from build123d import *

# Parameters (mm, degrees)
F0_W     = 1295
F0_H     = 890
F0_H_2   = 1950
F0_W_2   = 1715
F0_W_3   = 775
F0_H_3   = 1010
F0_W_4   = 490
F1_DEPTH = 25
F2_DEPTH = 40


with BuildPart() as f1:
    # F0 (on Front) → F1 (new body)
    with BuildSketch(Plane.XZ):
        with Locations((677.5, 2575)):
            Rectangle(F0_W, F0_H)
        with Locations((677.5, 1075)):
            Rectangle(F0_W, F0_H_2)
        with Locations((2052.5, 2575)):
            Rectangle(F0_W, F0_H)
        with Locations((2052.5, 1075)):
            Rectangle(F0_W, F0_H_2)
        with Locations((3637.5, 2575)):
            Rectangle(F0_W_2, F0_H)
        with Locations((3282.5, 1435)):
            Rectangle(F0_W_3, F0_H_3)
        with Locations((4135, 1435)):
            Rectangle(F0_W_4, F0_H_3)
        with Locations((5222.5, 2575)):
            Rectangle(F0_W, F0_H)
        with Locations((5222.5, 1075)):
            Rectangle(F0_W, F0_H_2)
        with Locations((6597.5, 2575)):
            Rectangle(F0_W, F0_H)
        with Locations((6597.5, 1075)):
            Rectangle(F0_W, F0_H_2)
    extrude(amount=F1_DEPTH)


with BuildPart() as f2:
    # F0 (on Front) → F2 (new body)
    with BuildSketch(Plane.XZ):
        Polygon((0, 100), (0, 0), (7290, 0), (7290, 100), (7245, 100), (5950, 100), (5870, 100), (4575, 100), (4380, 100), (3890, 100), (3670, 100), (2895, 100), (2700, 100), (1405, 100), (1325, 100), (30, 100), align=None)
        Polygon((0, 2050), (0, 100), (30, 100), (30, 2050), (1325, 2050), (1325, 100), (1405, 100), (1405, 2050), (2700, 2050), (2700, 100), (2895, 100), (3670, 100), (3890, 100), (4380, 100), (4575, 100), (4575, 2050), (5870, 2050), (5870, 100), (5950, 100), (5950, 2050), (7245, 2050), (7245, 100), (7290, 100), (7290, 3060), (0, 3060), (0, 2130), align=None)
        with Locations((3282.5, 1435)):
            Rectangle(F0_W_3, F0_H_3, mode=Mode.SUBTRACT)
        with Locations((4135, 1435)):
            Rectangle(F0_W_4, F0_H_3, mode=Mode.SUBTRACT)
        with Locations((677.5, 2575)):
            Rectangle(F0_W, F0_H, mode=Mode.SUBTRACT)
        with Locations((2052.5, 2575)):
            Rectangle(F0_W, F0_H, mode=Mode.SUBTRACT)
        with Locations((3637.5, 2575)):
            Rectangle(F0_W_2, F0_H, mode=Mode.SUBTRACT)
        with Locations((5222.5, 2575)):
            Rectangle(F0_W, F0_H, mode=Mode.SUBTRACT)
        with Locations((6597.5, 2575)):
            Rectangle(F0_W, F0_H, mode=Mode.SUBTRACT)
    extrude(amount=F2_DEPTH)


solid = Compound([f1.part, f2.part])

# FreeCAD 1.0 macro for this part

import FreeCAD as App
import Part
import Sketcher
from FreeCAD import Vector

doc = App.newDocument("Part")
body = doc.addObject("PartDesign::Body", "Body")
body.AllowCompound = True

sketch1 = doc.addObject("Sketcher::SketchObject", "Sketch")
body.addObject(sketch1)
sketch1.AttachmentSupport = (doc.XZ_Plane, [""])
sketch1.MapMode = "FlatFace"
sketch1.addGeometry([
    Part.LineSegment(Vector(30, 3020, 0), Vector(30, 2130, 0)),
    Part.LineSegment(Vector(30, 2130, 0), Vector(1325, 2130, 0)),
    Part.LineSegment(Vector(1325, 2130, 0), Vector(1325, 3020, 0)),
    Part.LineSegment(Vector(1325, 3020, 0), Vector(30, 3020, 0)),
    Part.LineSegment(Vector(30, 2050, 0), Vector(30, 100, 0)),
    Part.LineSegment(Vector(30, 100, 0), Vector(1325, 100, 0)),
    Part.LineSegment(Vector(1325, 100, 0), Vector(1325, 2050, 0)),
    Part.LineSegment(Vector(1325, 2050, 0), Vector(30, 2050, 0)),
    Part.LineSegment(Vector(1405, 3020, 0), Vector(1405, 2130, 0)),
    Part.LineSegment(Vector(1405, 2130, 0), Vector(2700, 2130, 0)),
    Part.LineSegment(Vector(2700, 2130, 0), Vector(2700, 3020, 0)),
    Part.LineSegment(Vector(2700, 3020, 0), Vector(1405, 3020, 0)),
    Part.LineSegment(Vector(1405, 2050, 0), Vector(1405, 100, 0)),
    Part.LineSegment(Vector(1405, 100, 0), Vector(2700, 100, 0)),
    Part.LineSegment(Vector(2700, 100, 0), Vector(2700, 2050, 0)),
    Part.LineSegment(Vector(2700, 2050, 0), Vector(1405, 2050, 0)),
    Part.LineSegment(Vector(2780, 3020, 0), Vector(2780, 2130, 0)),
    Part.LineSegment(Vector(2780, 2130, 0), Vector(4495, 2130, 0)),
    Part.LineSegment(Vector(4495, 2130, 0), Vector(4495, 3020, 0)),
    Part.LineSegment(Vector(4495, 3020, 0), Vector(2780, 3020, 0)),
    Part.LineSegment(Vector(2895, 1940, 0), Vector(2895, 930, 0)),
    Part.LineSegment(Vector(2895, 930, 0), Vector(3670, 930, 0)),
    Part.LineSegment(Vector(3670, 930, 0), Vector(3670, 1940, 0)),
    Part.LineSegment(Vector(3670, 1940, 0), Vector(2895, 1940, 0)),
    Part.LineSegment(Vector(3890, 1940, 0), Vector(3890, 930, 0)),
    Part.LineSegment(Vector(3890, 930, 0), Vector(4380, 930, 0)),
    Part.LineSegment(Vector(4380, 930, 0), Vector(4380, 1940, 0)),
    Part.LineSegment(Vector(4380, 1940, 0), Vector(3890, 1940, 0)),
    Part.LineSegment(Vector(4575, 3020, 0), Vector(4575, 2130, 0)),
    Part.LineSegment(Vector(4575, 2130, 0), Vector(5870, 2130, 0)),
    Part.LineSegment(Vector(5870, 2130, 0), Vector(5870, 3020, 0)),
    Part.LineSegment(Vector(5870, 3020, 0), Vector(4575, 3020, 0)),
    Part.LineSegment(Vector(4575, 2050, 0), Vector(4575, 100, 0)),
    Part.LineSegment(Vector(4575, 100, 0), Vector(5870, 100, 0)),
    Part.LineSegment(Vector(5870, 100, 0), Vector(5870, 2050, 0)),
    Part.LineSegment(Vector(5870, 2050, 0), Vector(4575, 2050, 0)),
    Part.LineSegment(Vector(5950, 3020, 0), Vector(5950, 2130, 0)),
    Part.LineSegment(Vector(5950, 2130, 0), Vector(7245, 2130, 0)),
    Part.LineSegment(Vector(7245, 2130, 0), Vector(7245, 3020, 0)),
    Part.LineSegment(Vector(7245, 3020, 0), Vector(5950, 3020, 0)),
    Part.LineSegment(Vector(5950, 2050, 0), Vector(5950, 100, 0)),
    Part.LineSegment(Vector(5950, 100, 0), Vector(7245, 100, 0)),
    Part.LineSegment(Vector(7245, 100, 0), Vector(7245, 2050, 0)),
    Part.LineSegment(Vector(7245, 2050, 0), Vector(5950, 2050, 0)),
], False)
sketch1.addConstraint([
    Sketcher.Constraint("Coincident", 0, 2, 1, 1),
    Sketcher.Constraint("Coincident", 1, 2, 2, 1),
    Sketcher.Constraint("Coincident", 2, 2, 3, 1),
    Sketcher.Constraint("Coincident", 3, 2, 0, 1),
    Sketcher.Constraint("Coincident", 4, 2, 5, 1),
    Sketcher.Constraint("Coincident", 5, 2, 6, 1),
    Sketcher.Constraint("Coincident", 6, 2, 7, 1),
    Sketcher.Constraint("Coincident", 7, 2, 4, 1),
    Sketcher.Constraint("Coincident", 8, 2, 9, 1),
    Sketcher.Constraint("Coincident", 9, 2, 10, 1),
    Sketcher.Constraint("Coincident", 10, 2, 11, 1),
    Sketcher.Constraint("Coincident", 11, 2, 8, 1),
    Sketcher.Constraint("Coincident", 12, 2, 13, 1),
    Sketcher.Constraint("Coincident", 13, 2, 14, 1),
    Sketcher.Constraint("Coincident", 14, 2, 15, 1),
    Sketcher.Constraint("Coincident", 15, 2, 12, 1),
    Sketcher.Constraint("Coincident", 16, 2, 17, 1),
    Sketcher.Constraint("Coincident", 17, 2, 18, 1),
    Sketcher.Constraint("Coincident", 18, 2, 19, 1),
    Sketcher.Constraint("Coincident", 19, 2, 16, 1),
    Sketcher.Constraint("Coincident", 20, 2, 21, 1),
    Sketcher.Constraint("Coincident", 21, 2, 22, 1),
    Sketcher.Constraint("Coincident", 22, 2, 23, 1),
    Sketcher.Constraint("Coincident", 23, 2, 20, 1),
    Sketcher.Constraint("Coincident", 24, 2, 25, 1),
    Sketcher.Constraint("Coincident", 25, 2, 26, 1),
    Sketcher.Constraint("Coincident", 26, 2, 27, 1),
    Sketcher.Constraint("Coincident", 27, 2, 24, 1),
    Sketcher.Constraint("Coincident", 28, 2, 29, 1),
    Sketcher.Constraint("Coincident", 29, 2, 30, 1),
    Sketcher.Constraint("Coincident", 30, 2, 31, 1),
    Sketcher.Constraint("Coincident", 31, 2, 28, 1),
    Sketcher.Constraint("Coincident", 32, 2, 33, 1),
    Sketcher.Constraint("Coincident", 33, 2, 34, 1),
    Sketcher.Constraint("Coincident", 34, 2, 35, 1),
    Sketcher.Constraint("Coincident", 35, 2, 32, 1),
    Sketcher.Constraint("Coincident", 36, 2, 37, 1),
    Sketcher.Constraint("Coincident", 37, 2, 38, 1),
    Sketcher.Constraint("Coincident", 38, 2, 39, 1),
    Sketcher.Constraint("Coincident", 39, 2, 36, 1),
    Sketcher.Constraint("Coincident", 40, 2, 41, 1),
    Sketcher.Constraint("Coincident", 41, 2, 42, 1),
    Sketcher.Constraint("Coincident", 42, 2, 43, 1),
    Sketcher.Constraint("Coincident", 43, 2, 40, 1),
    Sketcher.Constraint("Vertical", 0),
    Sketcher.Constraint("Horizontal", 1),
    Sketcher.Constraint("Vertical", 2),
    Sketcher.Constraint("Horizontal", 3),
    Sketcher.Constraint("Vertical", 4),
    Sketcher.Constraint("Horizontal", 5),
    Sketcher.Constraint("Vertical", 6),
    Sketcher.Constraint("Horizontal", 7),
    Sketcher.Constraint("Vertical", 8),
    Sketcher.Constraint("Horizontal", 9),
    Sketcher.Constraint("Vertical", 10),
    Sketcher.Constraint("Horizontal", 11),
    Sketcher.Constraint("Vertical", 12),
    Sketcher.Constraint("Horizontal", 13),
    Sketcher.Constraint("Vertical", 14),
    Sketcher.Constraint("Horizontal", 15),
    Sketcher.Constraint("Vertical", 16),
    Sketcher.Constraint("Horizontal", 17),
    Sketcher.Constraint("Vertical", 18),
    Sketcher.Constraint("Horizontal", 19),
    Sketcher.Constraint("Vertical", 20),
    Sketcher.Constraint("Horizontal", 21),
    Sketcher.Constraint("Vertical", 22),
    Sketcher.Constraint("Horizontal", 23),
    Sketcher.Constraint("Vertical", 24),
    Sketcher.Constraint("Horizontal", 25),
    Sketcher.Constraint("Vertical", 26),
    Sketcher.Constraint("Horizontal", 27),
    Sketcher.Constraint("Vertical", 28),
    Sketcher.Constraint("Horizontal", 29),
    Sketcher.Constraint("Vertical", 30),
    Sketcher.Constraint("Horizontal", 31),
    Sketcher.Constraint("Vertical", 32),
    Sketcher.Constraint("Horizontal", 33),
    Sketcher.Constraint("Vertical", 34),
    Sketcher.Constraint("Horizontal", 35),
    Sketcher.Constraint("Vertical", 36),
    Sketcher.Constraint("Horizontal", 37),
    Sketcher.Constraint("Vertical", 38),
    Sketcher.Constraint("Horizontal", 39),
    Sketcher.Constraint("Vertical", 40),
    Sketcher.Constraint("Horizontal", 41),
    Sketcher.Constraint("Vertical", 42),
    Sketcher.Constraint("Horizontal", 43),
    Sketcher.Constraint("Horizontal", 1, 2, 8, 2),
    Sketcher.Constraint("Horizontal", 3, 2, 10, 2),
    Sketcher.Constraint("Horizontal", 5, 2, 12, 2),
    Sketcher.Constraint("Horizontal", 7, 2, 14, 2),
    Sketcher.Constraint("Horizontal", 9, 2, 16, 2),
    Sketcher.Constraint("Horizontal", 11, 2, 18, 2),
    Sketcher.Constraint("Horizontal", 21, 2, 24, 2),
    Sketcher.Constraint("Horizontal", 23, 2, 26, 2),
    Sketcher.Constraint("Horizontal", 17, 2, 28, 2),
    Sketcher.Constraint("Horizontal", 19, 2, 30, 2),
    Sketcher.Constraint("Horizontal", 13, 2, 32, 2),
    Sketcher.Constraint("Horizontal", 15, 2, 34, 2),
    Sketcher.Constraint("Horizontal", 29, 2, 36, 2),
    Sketcher.Constraint("Horizontal", 31, 2, 38, 2),
    Sketcher.Constraint("Horizontal", 33, 2, 40, 2),
    Sketcher.Constraint("Horizontal", 35, 2, 42, 2),
    Sketcher.Constraint("Vertical", 3, 2, 4, 2),
    Sketcher.Constraint("Vertical", 2, 2, 5, 2),
    Sketcher.Constraint("Vertical", 11, 2, 12, 2),
    Sketcher.Constraint("Vertical", 10, 2, 13, 2),
    Sketcher.Constraint("Vertical", 31, 2, 32, 2),
    Sketcher.Constraint("Vertical", 30, 2, 33, 2),
    Sketcher.Constraint("Vertical", 39, 2, 40, 2),
    Sketcher.Constraint("Vertical", 38, 2, 41, 2),
    Sketcher.Constraint("Equal", 7, 9),
    Sketcher.Constraint("Equal", 15, 29),
    Sketcher.Constraint("Equal", 35, 37),
    Sketcher.Constraint("DistanceX", 1, 1, 1, 2, 1295.0),
    Sketcher.Constraint("DistanceX", 17, 1, 17, 2, 1715.0),
    Sketcher.Constraint("DistanceX", 21, 1, 21, 2, 775.0),
    Sketcher.Constraint("DistanceX", 25, 1, 25, 2, 490.0),
    Sketcher.Constraint("DistanceY", 0, 2, 0, 1, 890.0),
    Sketcher.Constraint("DistanceY", 4, 2, 4, 1, 1950.0),
    Sketcher.Constraint("DistanceY", 20, 2, 20, 1, 1010.0),
    Sketcher.Constraint("DistanceX", -1, 1, 0, 2, 30.0),
    Sketcher.Constraint("DistanceY", -1, 1, 0, 2, 2130.0),
    Sketcher.Constraint("DistanceY", -1, 1, 4, 2, 100.0),
    Sketcher.Constraint("DistanceX", -1, 1, 8, 2, 1405.0),
    Sketcher.Constraint("DistanceX", -1, 1, 16, 2, 2780.0),
    Sketcher.Constraint("DistanceX", -1, 1, 20, 2, 2895.0),
    Sketcher.Constraint("DistanceY", -1, 1, 20, 2, 930.0),
    Sketcher.Constraint("DistanceX", -1, 1, 24, 2, 3890.0),
    Sketcher.Constraint("DistanceX", -1, 1, 28, 2, 4575.0),
    Sketcher.Constraint("DistanceX", -1, 1, 36, 2, 5950.0),
])
pad1 = doc.addObject("PartDesign::Pad", "Pad")
body.addObject(pad1)
pad1.Profile = sketch1
pad1.Length = 25
body2 = doc.addObject("PartDesign::Body", "Body001")

sketch2 = doc.addObject("Sketcher::SketchObject", "Sketch001")
body2.addObject(sketch2)
sketch2.AttachmentSupport = (doc.getObject("XZ_Plane001"), [""])
sketch2.MapMode = "FlatFace"
sketch2.addGeometry([
    Part.LineSegment(Vector(0, 0, 0), Vector(7290, 0, 0)),
    Part.LineSegment(Vector(7290, 0, 0), Vector(7290, 3060, 0)),
    Part.LineSegment(Vector(7290, 3060, 0), Vector(0, 3060, 0)),
    Part.LineSegment(Vector(0, 3060, 0), Vector(0, 0, 0)),
    Part.LineSegment(Vector(1325, 100, 0), Vector(30, 100, 0)),
    Part.LineSegment(Vector(30, 100, 0), Vector(30, 2050, 0)),
    Part.LineSegment(Vector(30, 2050, 0), Vector(1325, 2050, 0)),
    Part.LineSegment(Vector(1325, 2050, 0), Vector(1325, 100, 0)),
    Part.LineSegment(Vector(2700, 100, 0), Vector(1405, 100, 0)),
    Part.LineSegment(Vector(1405, 100, 0), Vector(1405, 2050, 0)),
    Part.LineSegment(Vector(1405, 2050, 0), Vector(2700, 2050, 0)),
    Part.LineSegment(Vector(2700, 2050, 0), Vector(2700, 100, 0)),
    Part.LineSegment(Vector(3670, 930, 0), Vector(2895, 930, 0)),
    Part.LineSegment(Vector(2895, 930, 0), Vector(2895, 1940, 0)),
    Part.LineSegment(Vector(2895, 1940, 0), Vector(3670, 1940, 0)),
    Part.LineSegment(Vector(3670, 1940, 0), Vector(3670, 930, 0)),
    Part.LineSegment(Vector(5870, 100, 0), Vector(4575, 100, 0)),
    Part.LineSegment(Vector(4575, 100, 0), Vector(4575, 2050, 0)),
    Part.LineSegment(Vector(4575, 2050, 0), Vector(5870, 2050, 0)),
    Part.LineSegment(Vector(5870, 2050, 0), Vector(5870, 100, 0)),
    Part.LineSegment(Vector(4380, 930, 0), Vector(3890, 930, 0)),
    Part.LineSegment(Vector(3890, 930, 0), Vector(3890, 1940, 0)),
    Part.LineSegment(Vector(3890, 1940, 0), Vector(4380, 1940, 0)),
    Part.LineSegment(Vector(4380, 1940, 0), Vector(4380, 930, 0)),
    Part.LineSegment(Vector(7245, 100, 0), Vector(5950, 100, 0)),
    Part.LineSegment(Vector(5950, 100, 0), Vector(5950, 2050, 0)),
    Part.LineSegment(Vector(5950, 2050, 0), Vector(7245, 2050, 0)),
    Part.LineSegment(Vector(7245, 2050, 0), Vector(7245, 100, 0)),
    Part.LineSegment(Vector(1325, 2130, 0), Vector(30, 2130, 0)),
    Part.LineSegment(Vector(30, 2130, 0), Vector(30, 3020, 0)),
    Part.LineSegment(Vector(30, 3020, 0), Vector(1325, 3020, 0)),
    Part.LineSegment(Vector(1325, 3020, 0), Vector(1325, 2130, 0)),
    Part.LineSegment(Vector(2700, 2130, 0), Vector(1405, 2130, 0)),
    Part.LineSegment(Vector(1405, 2130, 0), Vector(1405, 3020, 0)),
    Part.LineSegment(Vector(1405, 3020, 0), Vector(2700, 3020, 0)),
    Part.LineSegment(Vector(2700, 3020, 0), Vector(2700, 2130, 0)),
    Part.LineSegment(Vector(4495, 2130, 0), Vector(2780, 2130, 0)),
    Part.LineSegment(Vector(2780, 2130, 0), Vector(2780, 3020, 0)),
    Part.LineSegment(Vector(2780, 3020, 0), Vector(4495, 3020, 0)),
    Part.LineSegment(Vector(4495, 3020, 0), Vector(4495, 2130, 0)),
    Part.LineSegment(Vector(5870, 2130, 0), Vector(4575, 2130, 0)),
    Part.LineSegment(Vector(4575, 2130, 0), Vector(4575, 3020, 0)),
    Part.LineSegment(Vector(4575, 3020, 0), Vector(5870, 3020, 0)),
    Part.LineSegment(Vector(5870, 3020, 0), Vector(5870, 2130, 0)),
    Part.LineSegment(Vector(7245, 2130, 0), Vector(5950, 2130, 0)),
    Part.LineSegment(Vector(5950, 2130, 0), Vector(5950, 3020, 0)),
    Part.LineSegment(Vector(5950, 3020, 0), Vector(7245, 3020, 0)),
    Part.LineSegment(Vector(7245, 3020, 0), Vector(7245, 2130, 0)),
], False)
sketch2.addConstraint([
    Sketcher.Constraint("Coincident", 0, 2, 1, 1),
    Sketcher.Constraint("Coincident", 1, 2, 2, 1),
    Sketcher.Constraint("Coincident", 2, 2, 3, 1),
    Sketcher.Constraint("Coincident", 3, 2, 0, 1),
    Sketcher.Constraint("Coincident", 4, 2, 5, 1),
    Sketcher.Constraint("Coincident", 5, 2, 6, 1),
    Sketcher.Constraint("Coincident", 6, 2, 7, 1),
    Sketcher.Constraint("Coincident", 7, 2, 4, 1),
    Sketcher.Constraint("Coincident", 8, 2, 9, 1),
    Sketcher.Constraint("Coincident", 9, 2, 10, 1),
    Sketcher.Constraint("Coincident", 10, 2, 11, 1),
    Sketcher.Constraint("Coincident", 11, 2, 8, 1),
    Sketcher.Constraint("Coincident", 12, 2, 13, 1),
    Sketcher.Constraint("Coincident", 13, 2, 14, 1),
    Sketcher.Constraint("Coincident", 14, 2, 15, 1),
    Sketcher.Constraint("Coincident", 15, 2, 12, 1),
    Sketcher.Constraint("Coincident", 16, 2, 17, 1),
    Sketcher.Constraint("Coincident", 17, 2, 18, 1),
    Sketcher.Constraint("Coincident", 18, 2, 19, 1),
    Sketcher.Constraint("Coincident", 19, 2, 16, 1),
    Sketcher.Constraint("Coincident", 20, 2, 21, 1),
    Sketcher.Constraint("Coincident", 21, 2, 22, 1),
    Sketcher.Constraint("Coincident", 22, 2, 23, 1),
    Sketcher.Constraint("Coincident", 23, 2, 20, 1),
    Sketcher.Constraint("Coincident", 24, 2, 25, 1),
    Sketcher.Constraint("Coincident", 25, 2, 26, 1),
    Sketcher.Constraint("Coincident", 26, 2, 27, 1),
    Sketcher.Constraint("Coincident", 27, 2, 24, 1),
    Sketcher.Constraint("Coincident", 28, 2, 29, 1),
    Sketcher.Constraint("Coincident", 29, 2, 30, 1),
    Sketcher.Constraint("Coincident", 30, 2, 31, 1),
    Sketcher.Constraint("Coincident", 31, 2, 28, 1),
    Sketcher.Constraint("Coincident", 32, 2, 33, 1),
    Sketcher.Constraint("Coincident", 33, 2, 34, 1),
    Sketcher.Constraint("Coincident", 34, 2, 35, 1),
    Sketcher.Constraint("Coincident", 35, 2, 32, 1),
    Sketcher.Constraint("Coincident", 36, 2, 37, 1),
    Sketcher.Constraint("Coincident", 37, 2, 38, 1),
    Sketcher.Constraint("Coincident", 38, 2, 39, 1),
    Sketcher.Constraint("Coincident", 39, 2, 36, 1),
    Sketcher.Constraint("Coincident", 40, 2, 41, 1),
    Sketcher.Constraint("Coincident", 41, 2, 42, 1),
    Sketcher.Constraint("Coincident", 42, 2, 43, 1),
    Sketcher.Constraint("Coincident", 43, 2, 40, 1),
    Sketcher.Constraint("Coincident", 44, 2, 45, 1),
    Sketcher.Constraint("Coincident", 45, 2, 46, 1),
    Sketcher.Constraint("Coincident", 46, 2, 47, 1),
    Sketcher.Constraint("Coincident", 47, 2, 44, 1),
    Sketcher.Constraint("Horizontal", 0),
    Sketcher.Constraint("Vertical", 1),
    Sketcher.Constraint("Horizontal", 2),
    Sketcher.Constraint("Vertical", 3),
    Sketcher.Constraint("Horizontal", 4),
    Sketcher.Constraint("Vertical", 5),
    Sketcher.Constraint("Horizontal", 6),
    Sketcher.Constraint("Vertical", 7),
    Sketcher.Constraint("Horizontal", 8),
    Sketcher.Constraint("Vertical", 9),
    Sketcher.Constraint("Horizontal", 10),
    Sketcher.Constraint("Vertical", 11),
    Sketcher.Constraint("Horizontal", 12),
    Sketcher.Constraint("Vertical", 13),
    Sketcher.Constraint("Horizontal", 14),
    Sketcher.Constraint("Vertical", 15),
    Sketcher.Constraint("Horizontal", 16),
    Sketcher.Constraint("Vertical", 17),
    Sketcher.Constraint("Horizontal", 18),
    Sketcher.Constraint("Vertical", 19),
    Sketcher.Constraint("Horizontal", 20),
    Sketcher.Constraint("Vertical", 21),
    Sketcher.Constraint("Horizontal", 22),
    Sketcher.Constraint("Vertical", 23),
    Sketcher.Constraint("Horizontal", 24),
    Sketcher.Constraint("Vertical", 25),
    Sketcher.Constraint("Horizontal", 26),
    Sketcher.Constraint("Vertical", 27),
    Sketcher.Constraint("Horizontal", 28),
    Sketcher.Constraint("Vertical", 29),
    Sketcher.Constraint("Horizontal", 30),
    Sketcher.Constraint("Vertical", 31),
    Sketcher.Constraint("Horizontal", 32),
    Sketcher.Constraint("Vertical", 33),
    Sketcher.Constraint("Horizontal", 34),
    Sketcher.Constraint("Vertical", 35),
    Sketcher.Constraint("Horizontal", 36),
    Sketcher.Constraint("Vertical", 37),
    Sketcher.Constraint("Horizontal", 38),
    Sketcher.Constraint("Vertical", 39),
    Sketcher.Constraint("Horizontal", 40),
    Sketcher.Constraint("Vertical", 41),
    Sketcher.Constraint("Horizontal", 42),
    Sketcher.Constraint("Vertical", 43),
    Sketcher.Constraint("Horizontal", 44),
    Sketcher.Constraint("Vertical", 45),
    Sketcher.Constraint("Horizontal", 46),
    Sketcher.Constraint("Vertical", 47),
    Sketcher.Constraint("Coincident", 3, 2, -1, 1),
    Sketcher.Constraint("Horizontal", 7, 2, 8, 2),
    Sketcher.Constraint("Horizontal", 6, 2, 9, 2),
    Sketcher.Constraint("Horizontal", 11, 2, 16, 2),
    Sketcher.Constraint("Horizontal", 10, 2, 17, 2),
    Sketcher.Constraint("Horizontal", 15, 2, 20, 2),
    Sketcher.Constraint("Horizontal", 14, 2, 21, 2),
    Sketcher.Constraint("Horizontal", 19, 2, 24, 2),
    Sketcher.Constraint("Horizontal", 18, 2, 25, 2),
    Sketcher.Constraint("Horizontal", 31, 2, 32, 2),
    Sketcher.Constraint("Horizontal", 30, 2, 33, 2),
    Sketcher.Constraint("Horizontal", 35, 2, 36, 2),
    Sketcher.Constraint("Horizontal", 34, 2, 37, 2),
    Sketcher.Constraint("Horizontal", 39, 2, 40, 2),
    Sketcher.Constraint("Horizontal", 38, 2, 41, 2),
    Sketcher.Constraint("Horizontal", 43, 2, 44, 2),
    Sketcher.Constraint("Horizontal", 42, 2, 45, 2),
    Sketcher.Constraint("Vertical", 5, 2, 28, 2),
    Sketcher.Constraint("Vertical", 7, 2, 30, 2),
    Sketcher.Constraint("Vertical", 9, 2, 32, 2),
    Sketcher.Constraint("Vertical", 11, 2, 34, 2),
    Sketcher.Constraint("Vertical", 17, 2, 40, 2),
    Sketcher.Constraint("Vertical", 19, 2, 42, 2),
    Sketcher.Constraint("Vertical", 25, 2, 44, 2),
    Sketcher.Constraint("Vertical", 27, 2, 46, 2),
    Sketcher.Constraint("Equal", 6, 8),
    Sketcher.Constraint("Equal", 10, 16),
    Sketcher.Constraint("Equal", 18, 24),
    Sketcher.Constraint("DistanceX", 0, 1, 0, 2, 7290.0),
    Sketcher.Constraint("DistanceX", 4, 2, 4, 1, 1295.0),
    Sketcher.Constraint("DistanceX", 12, 2, 12, 1, 775.0),
    Sketcher.Constraint("DistanceX", 20, 2, 20, 1, 490.0),
    Sketcher.Constraint("DistanceX", 36, 2, 36, 1, 1715.0),
    Sketcher.Constraint("DistanceY", 1, 1, 1, 2, 3060.0),
    Sketcher.Constraint("DistanceY", 5, 1, 5, 2, 1950.0),
    Sketcher.Constraint("DistanceY", 13, 1, 13, 2, 1010.0),
    Sketcher.Constraint("DistanceY", 29, 1, 29, 2, 890.0),
    Sketcher.Constraint("DistanceX", -1, 1, 4, 2, 30.0),
    Sketcher.Constraint("DistanceY", -1, 1, 4, 2, 100.0),
    Sketcher.Constraint("DistanceX", -1, 1, 8, 2, 1405.0),
    Sketcher.Constraint("DistanceX", -1, 1, 12, 2, 2895.0),
    Sketcher.Constraint("DistanceY", -1, 1, 12, 2, 930.0),
    Sketcher.Constraint("DistanceX", -1, 1, 16, 2, 4575.0),
    Sketcher.Constraint("DistanceX", -1, 1, 20, 2, 3890.0),
    Sketcher.Constraint("DistanceX", -1, 1, 24, 2, 5950.0),
    Sketcher.Constraint("DistanceY", -1, 1, 28, 2, 2130.0),
    Sketcher.Constraint("DistanceX", -1, 1, 36, 2, 2780.0),
])
pad2 = doc.addObject("PartDesign::Pad", "Pad001")
body2.addObject(pad2)
pad2.Profile = sketch2
pad2.Length = 40

doc.recompute()
